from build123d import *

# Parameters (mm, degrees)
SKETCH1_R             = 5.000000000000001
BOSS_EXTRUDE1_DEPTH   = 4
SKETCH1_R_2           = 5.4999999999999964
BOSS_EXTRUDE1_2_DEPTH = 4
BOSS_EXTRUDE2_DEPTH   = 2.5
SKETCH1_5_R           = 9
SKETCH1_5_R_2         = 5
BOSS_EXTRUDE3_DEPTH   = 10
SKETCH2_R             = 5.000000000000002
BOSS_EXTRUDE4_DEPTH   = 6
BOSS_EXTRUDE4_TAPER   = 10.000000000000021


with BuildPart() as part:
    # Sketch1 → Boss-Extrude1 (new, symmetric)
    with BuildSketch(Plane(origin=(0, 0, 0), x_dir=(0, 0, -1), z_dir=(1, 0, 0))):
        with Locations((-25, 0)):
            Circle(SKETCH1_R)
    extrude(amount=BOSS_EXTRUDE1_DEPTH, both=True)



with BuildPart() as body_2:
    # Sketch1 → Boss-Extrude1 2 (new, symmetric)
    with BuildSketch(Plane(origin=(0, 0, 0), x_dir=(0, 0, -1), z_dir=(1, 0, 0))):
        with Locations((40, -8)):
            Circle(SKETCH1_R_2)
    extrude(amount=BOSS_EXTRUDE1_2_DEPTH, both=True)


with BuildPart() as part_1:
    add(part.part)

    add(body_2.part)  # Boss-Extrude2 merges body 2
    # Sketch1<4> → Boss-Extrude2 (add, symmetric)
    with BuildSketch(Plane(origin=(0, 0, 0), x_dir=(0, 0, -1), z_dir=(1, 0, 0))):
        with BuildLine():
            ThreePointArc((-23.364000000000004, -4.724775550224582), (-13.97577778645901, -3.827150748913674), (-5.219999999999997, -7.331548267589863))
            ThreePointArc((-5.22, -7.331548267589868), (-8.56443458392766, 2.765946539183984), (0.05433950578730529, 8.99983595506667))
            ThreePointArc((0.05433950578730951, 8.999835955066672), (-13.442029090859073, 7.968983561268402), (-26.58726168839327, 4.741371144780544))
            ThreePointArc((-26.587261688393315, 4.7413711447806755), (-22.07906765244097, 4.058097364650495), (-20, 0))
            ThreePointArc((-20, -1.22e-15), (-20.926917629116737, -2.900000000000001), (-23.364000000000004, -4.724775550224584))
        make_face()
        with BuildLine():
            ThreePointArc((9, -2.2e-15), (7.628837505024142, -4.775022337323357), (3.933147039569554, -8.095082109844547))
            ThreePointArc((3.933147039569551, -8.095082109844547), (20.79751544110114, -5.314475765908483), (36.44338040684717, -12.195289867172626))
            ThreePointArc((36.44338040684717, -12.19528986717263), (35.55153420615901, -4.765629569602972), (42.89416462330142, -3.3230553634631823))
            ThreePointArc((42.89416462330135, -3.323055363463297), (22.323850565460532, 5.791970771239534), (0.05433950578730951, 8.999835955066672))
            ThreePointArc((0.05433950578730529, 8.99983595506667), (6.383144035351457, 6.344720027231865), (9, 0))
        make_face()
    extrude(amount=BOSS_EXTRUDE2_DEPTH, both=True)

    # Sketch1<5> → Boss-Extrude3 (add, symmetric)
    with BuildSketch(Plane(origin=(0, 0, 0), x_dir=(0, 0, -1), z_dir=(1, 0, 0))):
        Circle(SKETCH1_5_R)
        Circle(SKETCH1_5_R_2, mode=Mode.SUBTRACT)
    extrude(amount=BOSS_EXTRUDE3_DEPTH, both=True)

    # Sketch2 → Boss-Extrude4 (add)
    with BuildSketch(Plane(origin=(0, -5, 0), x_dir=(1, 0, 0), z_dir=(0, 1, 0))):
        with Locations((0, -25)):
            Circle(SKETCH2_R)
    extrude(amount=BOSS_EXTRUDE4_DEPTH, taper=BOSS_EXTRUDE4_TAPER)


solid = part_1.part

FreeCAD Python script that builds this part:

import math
import FreeCAD as App
import Part
import Sketcher

doc = App.newDocument("Part")
params = doc.addObject("Spreadsheet::Sheet", "Params")
for row, (alias, value) in enumerate([
    ("sketch1_diameter", "10 mm"),
    ("pad1_length", "8 mm"),
    ("sketch2_diameter", "11 mm"),
    ("pad2_length", "8 mm"),
    ("sketch3_radius", "20 mm"),
    ("sketch3_radius2", "9 mm"),
    ("sketch3_radius3", "5 mm"),
    ("sketch3_radius4", "30 mm"),
    ("sketch3_radius5", "5.5 mm"),
    ("pad3_length", "5 mm"),
    ("sketch4_diameter", "18 mm"),
    ("sketch4_diameter2", "10 mm"),
    ("pad4_length", "20 mm"),
    ("sketch5_diameter", "10 mm"),
    ("pad5_length", "6 mm"),
    ("pad5_taper", "-10 deg"),
], start=1):
    params.set(f"A{row}", alias)
    params.set(f"B{row}", "=" + value)
    params.setAlias(f"B{row}", alias)

body = doc.addObject("PartDesign::Body", "Body")

sketch1 = body.newObject("Sketcher::SketchObject", "Sketch")
sketch1.AttachmentSupport = (doc.getObject("YZ_Plane"), [""])
sketch1.MapMode = "FlatFace"
sketch1.addGeometry(Part.Circle(App.Vector(0, 25, 0), App.Vector(0, 0, 1), 5), False)
sketch1.addConstraint(Sketcher.Constraint("PointOnObject", 0, 3, -2))
sketch1.addConstraint(Sketcher.Constraint("Diameter", 0, 10.0))
sketch1.addConstraint(Sketcher.Constraint("DistanceY", -1, 1, 0, 3, 25.0))
sketch1.setExpression("Constraints[1]", "Params.sketch1_diameter")
pad1 = body.newObject("PartDesign::Pad", "Pad")
pad1.Profile = sketch1
pad1.setExpression("Length", "Params.pad1_length")
pad1.Midplane = True
body2 = doc.addObject("PartDesign::Body", "Body001")

sketch2 = body2.newObject("Sketcher::SketchObject", "Sketch001")
sketch2.AttachmentSupport = (doc.getObject("YZ_Plane001"), [""])
sketch2.MapMode = "FlatFace"
sketch2.addGeometry(Part.Circle(App.Vector(-8, -40, 0), App.Vector(0, 0, 1), 6), False)
sketch2.addConstraint(Sketcher.Constraint("Diameter", 0, 11.0))
sketch2.addConstraint(Sketcher.Constraint("DistanceX", 0, 3, -1, 1, 8.0))
sketch2.addConstraint(Sketcher.Constraint("DistanceY", 0, 3, -1, 1, 40.0))
sketch2.setExpression("Constraints[0]", "Params.sketch2_diameter")
pad2 = body2.newObject("PartDesign::Pad", "Pad001")
pad2.Profile = sketch2
pad2.setExpression("Length", "Params.pad2_length")
pad2.Midplane = True
body.AllowCompound = True
doc.recompute()

boolean = body.newObject("PartDesign::Boolean", "Boolean")
boolean.Type = "Fuse"
boolean.addObjects([body2])

sketch3 = body.newObject("Sketcher::SketchObject", "Sketch002")
sketch3.AttachmentSupport = (doc.getObject("YZ_Plane"), [""])
sketch3.MapMode = "FlatFace"
sketch3.addGeometry(Part.ArcOfCircle(Part.Circle(App.Vector(-24, 17, 0), App.Vector(0, 0, 1), 20), math.radians(-35), math.radians(19)), False)
sketch3.addGeometry(Part.ArcOfCircle(Part.Circle(App.Vector(0, 0, 0), App.Vector(0, 0, 1), 9), math.radians(0), math.radians(145)), False)
sketch3.addGeometry(Part.ArcOfCircle(Part.Circle(App.Vector(-73, 0, 0), App.Vector(0, 0, 1), 82), math.radians(-0.35), math.radians(18.51)), False)
sketch3.addGeometry(Part.ArcOfCircle(Part.Circle(App.Vector(0, 25, 0), App.Vector(0, 0, 1), 5), math.radians(-161), math.radians(19)), False)
sketch3.addGeometry(Part.ArcOfCircle(Part.Circle(App.Vector(-35, -17, 0), App.Vector(0, 0, 1), 30), math.radians(-40), math.radians(26)), False)
sketch3.addGeometry(Part.ArcOfCircle(Part.Circle(App.Vector(-8, -40, 0), App.Vector(0, 0, 1), 6), math.radians(-32), math.radians(140)), False)
sketch3.addGeometry(Part.ArcOfCircle(Part.Circle(App.Vector(-73, 0, 0), App.Vector(0, 0, 1), 82), math.radians(-32), math.radians(0)), False)
sketch3.addGeometry(Part.ArcOfCircle(Part.Circle(App.Vector(0, 0, 0), App.Vector(0, 0, 1), 9), math.radians(-154), math.radians(0)), False)
sketch3.addConstraint(Sketcher.Constraint("Tangent", 0, 1, 1, 2))
sketch3.addConstraint(Sketcher.Constraint("Tangent", 1, 1, 2, 1))
sketch3.addConstraint(Sketcher.Constraint("Tangent", 2, 2, 3, 2))
sketch3.addConstraint(Sketcher.Constraint("Tangent", 3, 1, 0, 2))
sketch3.addConstraint(Sketcher.Constraint("Tangent", 4, 1, 5, 2))
sketch3.addConstraint(Sketcher.Constraint("Tangent", 5, 1, 6, 1))
sketch3.addConstraint(Sketcher.Constraint("Tangent", 6, 2, 7, 2))
sketch3.addConstraint(Sketcher.Constraint("Tangent", 7, 1, 4, 2))
sketch3.addConstraint(Sketcher.Constraint("Coincident", 1, 3, -1, 1))
sketch3.addConstraint(Sketcher.Constraint("Coincident", 7, 3, -1, 1))
sketch3.addConstraint(Sketcher.Constraint("Coincident", 6, 3, 2, 3))
sketch3.addConstraint(Sketcher.Constraint("Equal", 2, 6))
sketch3.addConstraint(Sketcher.Constraint("PointOnObject", 3, 3, -2))
sketch3.addConstraint(Sketcher.Constraint("Radius", 0, 20.0))
sketch3.addConstraint(Sketcher.Constraint("Radius", 1, 9.0))
sketch3.addConstraint(Sketcher.Constraint("Radius", 3, 5.0))
sketch3.addConstraint(Sketcher.Constraint("Radius", 4, 30.0))
sketch3.addConstraint(Sketcher.Constraint("Radius", 5, 5.5))
sketch3.addConstraint(Sketcher.Constraint("DistanceY", -1, 1, 3, 3, 25.0))
sketch3.addConstraint(Sketcher.Constraint("DistanceX", 5, 3, -1, 1, 8.0))
sketch3.addConstraint(Sketcher.Constraint("DistanceY", 5, 3, -1, 1, 40.0))
sketch3.setExpression("Constraints[13]", "Params.sketch3_radius")
sketch3.setExpression("Constraints[14]", "Params.sketch3_radius2")
sketch3.setExpression("Constraints[15]", "Params.sketch3_radius3")
sketch3.setExpression("Constraints[16]", "Params.sketch3_radius4")
sketch3.setExpression("Constraints[17]", "Params.sketch3_radius5")
pad3 = body.newObject("PartDesign::Pad", "Pad002")
pad3.Profile = sketch3
pad3.setExpression("Length", "Params.pad3_length")
pad3.Midplane = True

sketch4 = body.newObject("Sketcher::SketchObject", "Sketch003")
sketch4.AttachmentSupport = (doc.getObject("YZ_Plane"), [""])
sketch4.MapMode = "FlatFace"
sketch4.addGeometry(Part.Circle(App.Vector(0, 0, 0), App.Vector(0, 0, 1), 9), False)
sketch4.addGeometry(Part.Circle(App.Vector(0, 0, 0), App.Vector(0, 0, 1), 5), False)
sketch4.addConstraint(Sketcher.Constraint("Coincident", 0, 3, -1, 1))
sketch4.addConstraint(Sketcher.Constraint("Coincident", 1, 3, -1, 1))
sketch4.addConstraint(Sketcher.Constraint("Diameter", 0, 18.0))
sketch4.addConstraint(Sketcher.Constraint("Diameter", 1, 10.0))
sketch4.setExpression("Constraints[2]", "Params.sketch4_diameter")
sketch4.setExpression("Constraints[3]", "Params.sketch4_diameter2")
pad4 = body.newObject("PartDesign::Pad", "Pad003")
pad4.Profile = sketch4
pad4.setExpression("Length", "Params.pad4_length")
pad4.Midplane = True

sketch5 = body.newObject("Sketcher::SketchObject", "Sketch004")
sketch5.AttachmentSupport = (doc.getObject("XZ_Plane"), [""])
sketch5.MapMode = "FlatFace"
sketch5.AttachmentOffset = App.Placement(App.Vector(0, 0, 5), App.Rotation())
sketch5.addGeometry(Part.Circle(App.Vector(0, 25, 0), App.Vector(0, 0, 1), 5), False)
sketch5.addConstraint(Sketcher.Constraint("PointOnObject", 0, 3, -2))
sketch5.addConstraint(Sketcher.Constraint("Diameter", 0, 10.0))
sketch5.addConstraint(Sketcher.Constraint("DistanceY", -1, 1, 0, 3, 25.0))
sketch5.setExpression("Constraints[1]", "Params.sketch5_diameter")
pad5 = body.newObject("PartDesign::Pad", "Pad004")
pad5.Profile = sketch5
pad5.setExpression("Length", "Params.pad5_length")
pad5.Reversed = True
pad5.setExpression("TaperAngle", "Params.pad5_taper")

doc.recompute()
